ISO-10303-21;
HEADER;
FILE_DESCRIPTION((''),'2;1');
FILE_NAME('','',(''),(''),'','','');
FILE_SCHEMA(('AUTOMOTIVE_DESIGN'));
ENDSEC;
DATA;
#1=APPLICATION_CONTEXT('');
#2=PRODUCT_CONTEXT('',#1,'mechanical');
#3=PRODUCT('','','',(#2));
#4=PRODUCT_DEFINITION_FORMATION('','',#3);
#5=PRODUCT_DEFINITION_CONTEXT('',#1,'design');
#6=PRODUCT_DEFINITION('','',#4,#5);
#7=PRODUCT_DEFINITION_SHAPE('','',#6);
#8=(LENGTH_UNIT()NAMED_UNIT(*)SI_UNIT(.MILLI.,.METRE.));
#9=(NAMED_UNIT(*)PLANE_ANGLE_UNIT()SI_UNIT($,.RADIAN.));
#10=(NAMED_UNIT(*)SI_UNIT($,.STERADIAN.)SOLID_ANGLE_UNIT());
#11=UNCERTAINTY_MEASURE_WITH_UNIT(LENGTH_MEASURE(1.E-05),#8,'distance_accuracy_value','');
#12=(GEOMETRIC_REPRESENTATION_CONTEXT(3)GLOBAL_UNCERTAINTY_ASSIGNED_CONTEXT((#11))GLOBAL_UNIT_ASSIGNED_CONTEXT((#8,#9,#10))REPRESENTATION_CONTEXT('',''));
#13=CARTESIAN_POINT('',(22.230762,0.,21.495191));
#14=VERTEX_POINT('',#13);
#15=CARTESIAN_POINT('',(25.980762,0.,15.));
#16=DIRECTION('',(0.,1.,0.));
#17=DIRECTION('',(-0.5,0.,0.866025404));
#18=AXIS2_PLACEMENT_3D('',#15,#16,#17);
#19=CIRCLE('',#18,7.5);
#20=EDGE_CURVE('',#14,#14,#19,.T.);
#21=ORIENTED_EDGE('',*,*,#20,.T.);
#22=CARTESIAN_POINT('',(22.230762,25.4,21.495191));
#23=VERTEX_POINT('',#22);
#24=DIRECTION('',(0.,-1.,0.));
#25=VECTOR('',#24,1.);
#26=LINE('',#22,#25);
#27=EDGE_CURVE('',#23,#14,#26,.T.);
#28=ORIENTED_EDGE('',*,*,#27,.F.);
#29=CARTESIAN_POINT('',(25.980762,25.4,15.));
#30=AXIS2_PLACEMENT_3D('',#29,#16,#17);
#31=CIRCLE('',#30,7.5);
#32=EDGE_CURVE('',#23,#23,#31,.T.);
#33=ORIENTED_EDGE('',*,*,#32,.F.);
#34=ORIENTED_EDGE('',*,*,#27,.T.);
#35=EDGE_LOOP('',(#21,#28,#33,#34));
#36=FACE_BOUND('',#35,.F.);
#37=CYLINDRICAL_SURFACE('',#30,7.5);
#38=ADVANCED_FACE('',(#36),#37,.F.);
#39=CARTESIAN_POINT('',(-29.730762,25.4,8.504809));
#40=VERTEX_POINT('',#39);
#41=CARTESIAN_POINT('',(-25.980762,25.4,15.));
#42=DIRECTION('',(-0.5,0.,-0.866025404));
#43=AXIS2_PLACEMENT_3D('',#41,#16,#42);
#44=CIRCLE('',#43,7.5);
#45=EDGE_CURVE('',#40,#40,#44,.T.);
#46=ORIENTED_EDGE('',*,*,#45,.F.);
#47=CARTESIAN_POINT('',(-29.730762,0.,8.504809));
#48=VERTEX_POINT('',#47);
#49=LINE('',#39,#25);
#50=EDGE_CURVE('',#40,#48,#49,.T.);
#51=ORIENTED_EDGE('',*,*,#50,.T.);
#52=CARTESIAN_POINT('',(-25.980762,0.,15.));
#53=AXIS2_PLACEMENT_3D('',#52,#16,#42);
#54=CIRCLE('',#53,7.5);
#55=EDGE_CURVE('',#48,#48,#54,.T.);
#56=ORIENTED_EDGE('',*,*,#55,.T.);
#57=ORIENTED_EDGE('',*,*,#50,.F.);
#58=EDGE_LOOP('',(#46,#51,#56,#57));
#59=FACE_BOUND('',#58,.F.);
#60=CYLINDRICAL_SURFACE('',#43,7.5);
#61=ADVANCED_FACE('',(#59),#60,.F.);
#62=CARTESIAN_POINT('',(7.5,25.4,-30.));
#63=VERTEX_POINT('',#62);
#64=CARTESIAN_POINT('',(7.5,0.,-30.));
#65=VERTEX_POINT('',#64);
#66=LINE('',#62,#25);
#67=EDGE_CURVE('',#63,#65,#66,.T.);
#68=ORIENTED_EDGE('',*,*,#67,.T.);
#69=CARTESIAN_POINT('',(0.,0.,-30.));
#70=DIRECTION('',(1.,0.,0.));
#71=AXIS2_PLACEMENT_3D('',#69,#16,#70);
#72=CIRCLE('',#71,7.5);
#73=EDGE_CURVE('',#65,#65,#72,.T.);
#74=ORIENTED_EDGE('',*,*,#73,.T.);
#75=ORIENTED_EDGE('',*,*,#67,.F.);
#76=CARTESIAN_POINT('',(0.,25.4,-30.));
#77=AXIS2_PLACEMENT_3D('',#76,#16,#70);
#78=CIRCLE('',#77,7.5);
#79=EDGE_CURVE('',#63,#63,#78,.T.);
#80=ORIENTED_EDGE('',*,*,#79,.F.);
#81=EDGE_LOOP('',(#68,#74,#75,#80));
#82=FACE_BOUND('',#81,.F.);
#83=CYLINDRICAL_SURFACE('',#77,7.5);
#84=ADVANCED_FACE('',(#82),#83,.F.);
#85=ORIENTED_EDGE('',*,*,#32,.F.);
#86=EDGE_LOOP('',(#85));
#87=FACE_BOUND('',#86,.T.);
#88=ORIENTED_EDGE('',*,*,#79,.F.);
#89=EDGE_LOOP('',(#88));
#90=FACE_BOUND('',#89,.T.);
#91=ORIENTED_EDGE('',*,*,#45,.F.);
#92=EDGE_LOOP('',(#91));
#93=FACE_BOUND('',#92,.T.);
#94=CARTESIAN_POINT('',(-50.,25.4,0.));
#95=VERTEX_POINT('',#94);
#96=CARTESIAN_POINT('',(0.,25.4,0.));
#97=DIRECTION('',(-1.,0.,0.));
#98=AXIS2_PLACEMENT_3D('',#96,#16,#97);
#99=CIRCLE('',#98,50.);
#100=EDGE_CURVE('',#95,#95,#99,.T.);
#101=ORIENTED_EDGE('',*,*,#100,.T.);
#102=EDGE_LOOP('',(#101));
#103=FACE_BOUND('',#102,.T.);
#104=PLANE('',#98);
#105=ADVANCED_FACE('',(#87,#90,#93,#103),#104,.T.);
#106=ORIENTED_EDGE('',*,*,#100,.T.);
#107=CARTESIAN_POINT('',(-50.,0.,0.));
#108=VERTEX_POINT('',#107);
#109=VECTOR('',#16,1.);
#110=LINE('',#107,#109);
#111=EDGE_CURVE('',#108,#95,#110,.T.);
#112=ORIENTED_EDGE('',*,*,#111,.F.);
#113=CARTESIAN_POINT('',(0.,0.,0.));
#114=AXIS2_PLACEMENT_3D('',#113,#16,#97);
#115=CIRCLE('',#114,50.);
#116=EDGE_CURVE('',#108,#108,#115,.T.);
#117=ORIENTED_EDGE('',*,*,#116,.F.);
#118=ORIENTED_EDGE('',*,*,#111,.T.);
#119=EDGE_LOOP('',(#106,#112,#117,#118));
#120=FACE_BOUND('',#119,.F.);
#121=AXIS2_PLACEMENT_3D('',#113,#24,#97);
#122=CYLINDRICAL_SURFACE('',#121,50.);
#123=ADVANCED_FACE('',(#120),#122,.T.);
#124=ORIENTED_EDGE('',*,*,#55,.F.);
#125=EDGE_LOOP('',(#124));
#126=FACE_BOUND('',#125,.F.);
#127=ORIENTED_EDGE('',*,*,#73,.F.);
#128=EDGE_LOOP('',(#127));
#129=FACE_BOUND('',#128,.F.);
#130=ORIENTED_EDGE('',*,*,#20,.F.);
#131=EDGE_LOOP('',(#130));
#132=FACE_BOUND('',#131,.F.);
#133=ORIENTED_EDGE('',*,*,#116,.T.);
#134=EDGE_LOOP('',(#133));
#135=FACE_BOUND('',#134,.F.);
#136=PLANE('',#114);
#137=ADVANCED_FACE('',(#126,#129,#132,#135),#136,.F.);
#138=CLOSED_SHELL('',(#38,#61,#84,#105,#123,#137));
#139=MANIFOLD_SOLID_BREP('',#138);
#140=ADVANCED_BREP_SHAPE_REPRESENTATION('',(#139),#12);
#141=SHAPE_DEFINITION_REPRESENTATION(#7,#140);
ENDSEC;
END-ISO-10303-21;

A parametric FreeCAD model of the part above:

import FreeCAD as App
import Part
import Sketcher
from FreeCAD import Vector
Q = App.Units.Quantity

doc = App.newDocument("Part")
body = doc.addObject("PartDesign::Body", "Body")

# Sketch on XZ plane
sketch1 = doc.addObject("Sketcher::SketchObject", "Sketch")
body.addObject(sketch1)
sketch1.AttachmentSupport = (doc.XZ_Plane, [""])
sketch1.MapMode = "FlatFace"
sketch1.addGeometry(Part.Circle(Vector(0, 0, 0), Vector(0, 0, 1), 50), False)
sketch1.addConstraint(Sketcher.Constraint("Coincident", 0, 3, -1, 1))
sketch1.addConstraint(Sketcher.Constraint("Diameter", 0, Q("100 mm")))
pad1 = doc.addObject("PartDesign::Pad", "Pad")
body.addObject(pad1)
pad1.Profile = sketch1
pad1.Length = 25.4
pad1.Reversed = True

# Sketch on XZ plane
sketch2 = doc.addObject("Sketcher::SketchObject", "Sketch001")
body.addObject(sketch2)
sketch2.AttachmentSupport = (doc.XZ_Plane, [""])
sketch2.MapMode = "FlatFace"
sketch2.AttachmentOffset = App.Placement(Vector(0, 0, -25.4), App.Rotation())
sketch2.addGeometry(Part.Circle(Vector(0, -30, 0), Vector(0, 0, 1), 8), False)
sketch2.addConstraint(Sketcher.Constraint("PointOnObject", 0, 3, -2))
sketch2.addConstraint(Sketcher.Constraint("Diameter", 0, Q("15 mm")))
sketch2.addConstraint(Sketcher.Constraint("DistanceY", 0, 3, -1, 1, Q("30 mm")))
pocket1 = doc.addObject("PartDesign::Pocket", "Pocket")
body.addObject(pocket1)
pocket1.Profile = sketch2
pocket1.Type = "ThroughAll"
pocket1.Reversed = True
doc.recompute()

polarpattern = doc.addObject("PartDesign::PolarPattern", "PolarPattern")
body.addObject(polarpattern)
polarpattern.Originals = [pocket1]
polarpattern.Axis = (doc.Y_Axis, [""])
polarpattern.Angle = 360
polarpattern.Occurrences = 3
body.Tip = polarpattern

doc.recompute()
